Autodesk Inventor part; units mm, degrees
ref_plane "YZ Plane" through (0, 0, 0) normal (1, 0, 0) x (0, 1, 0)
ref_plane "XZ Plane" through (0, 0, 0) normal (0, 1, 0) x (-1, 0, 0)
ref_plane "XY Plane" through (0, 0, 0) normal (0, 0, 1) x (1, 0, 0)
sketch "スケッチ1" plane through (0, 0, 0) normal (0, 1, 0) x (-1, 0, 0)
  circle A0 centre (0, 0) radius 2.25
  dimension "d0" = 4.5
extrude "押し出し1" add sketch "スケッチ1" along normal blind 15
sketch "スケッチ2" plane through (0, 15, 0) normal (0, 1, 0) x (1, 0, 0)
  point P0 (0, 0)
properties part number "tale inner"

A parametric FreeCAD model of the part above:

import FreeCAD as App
import Part
import Sketcher
from FreeCAD import Vector
Q = App.Units.Quantity

doc = App.newDocument("Part")
params = doc.addObject("Spreadsheet::Sheet", "Params")
for row, (alias, value) in enumerate([
    ("sketch1_diameter", "4.5 mm"),
    ("pad1_length", "15 mm"),
], start=1):
    params.set(f"A{row}", alias)
    params.set(f"B{row}", "=" + value)
    params.setAlias(f"B{row}", alias)

body = doc.addObject("PartDesign::Body", "Body")

sketch1 = body.newObject("Sketcher::SketchObject", "Sketch")
sketch1.AttachmentSupport = (doc.getObject("XZ_Plane"), [""])
sketch1.MapMode = "FlatFace"
sketch1.addGeometry(Part.Circle(Vector(0, 0, 0), Vector(0, 0, 1), 2.25), False)
sketch1.addConstraint([
    Sketcher.Constraint("Coincident", 0, 3, -1, 1),
    Sketcher.Constraint("Diameter", 0, Q("4.5 mm")),
])
sketch1.setExpression("Constraints[1]", "Params.sketch1_diameter")
pad1 = body.newObject("PartDesign::Pad", "Pad")
pad1.Profile = sketch1
pad1.setExpression("Length", "Params.pad1_length")
pad1.Reversed = True

doc.recompute()
